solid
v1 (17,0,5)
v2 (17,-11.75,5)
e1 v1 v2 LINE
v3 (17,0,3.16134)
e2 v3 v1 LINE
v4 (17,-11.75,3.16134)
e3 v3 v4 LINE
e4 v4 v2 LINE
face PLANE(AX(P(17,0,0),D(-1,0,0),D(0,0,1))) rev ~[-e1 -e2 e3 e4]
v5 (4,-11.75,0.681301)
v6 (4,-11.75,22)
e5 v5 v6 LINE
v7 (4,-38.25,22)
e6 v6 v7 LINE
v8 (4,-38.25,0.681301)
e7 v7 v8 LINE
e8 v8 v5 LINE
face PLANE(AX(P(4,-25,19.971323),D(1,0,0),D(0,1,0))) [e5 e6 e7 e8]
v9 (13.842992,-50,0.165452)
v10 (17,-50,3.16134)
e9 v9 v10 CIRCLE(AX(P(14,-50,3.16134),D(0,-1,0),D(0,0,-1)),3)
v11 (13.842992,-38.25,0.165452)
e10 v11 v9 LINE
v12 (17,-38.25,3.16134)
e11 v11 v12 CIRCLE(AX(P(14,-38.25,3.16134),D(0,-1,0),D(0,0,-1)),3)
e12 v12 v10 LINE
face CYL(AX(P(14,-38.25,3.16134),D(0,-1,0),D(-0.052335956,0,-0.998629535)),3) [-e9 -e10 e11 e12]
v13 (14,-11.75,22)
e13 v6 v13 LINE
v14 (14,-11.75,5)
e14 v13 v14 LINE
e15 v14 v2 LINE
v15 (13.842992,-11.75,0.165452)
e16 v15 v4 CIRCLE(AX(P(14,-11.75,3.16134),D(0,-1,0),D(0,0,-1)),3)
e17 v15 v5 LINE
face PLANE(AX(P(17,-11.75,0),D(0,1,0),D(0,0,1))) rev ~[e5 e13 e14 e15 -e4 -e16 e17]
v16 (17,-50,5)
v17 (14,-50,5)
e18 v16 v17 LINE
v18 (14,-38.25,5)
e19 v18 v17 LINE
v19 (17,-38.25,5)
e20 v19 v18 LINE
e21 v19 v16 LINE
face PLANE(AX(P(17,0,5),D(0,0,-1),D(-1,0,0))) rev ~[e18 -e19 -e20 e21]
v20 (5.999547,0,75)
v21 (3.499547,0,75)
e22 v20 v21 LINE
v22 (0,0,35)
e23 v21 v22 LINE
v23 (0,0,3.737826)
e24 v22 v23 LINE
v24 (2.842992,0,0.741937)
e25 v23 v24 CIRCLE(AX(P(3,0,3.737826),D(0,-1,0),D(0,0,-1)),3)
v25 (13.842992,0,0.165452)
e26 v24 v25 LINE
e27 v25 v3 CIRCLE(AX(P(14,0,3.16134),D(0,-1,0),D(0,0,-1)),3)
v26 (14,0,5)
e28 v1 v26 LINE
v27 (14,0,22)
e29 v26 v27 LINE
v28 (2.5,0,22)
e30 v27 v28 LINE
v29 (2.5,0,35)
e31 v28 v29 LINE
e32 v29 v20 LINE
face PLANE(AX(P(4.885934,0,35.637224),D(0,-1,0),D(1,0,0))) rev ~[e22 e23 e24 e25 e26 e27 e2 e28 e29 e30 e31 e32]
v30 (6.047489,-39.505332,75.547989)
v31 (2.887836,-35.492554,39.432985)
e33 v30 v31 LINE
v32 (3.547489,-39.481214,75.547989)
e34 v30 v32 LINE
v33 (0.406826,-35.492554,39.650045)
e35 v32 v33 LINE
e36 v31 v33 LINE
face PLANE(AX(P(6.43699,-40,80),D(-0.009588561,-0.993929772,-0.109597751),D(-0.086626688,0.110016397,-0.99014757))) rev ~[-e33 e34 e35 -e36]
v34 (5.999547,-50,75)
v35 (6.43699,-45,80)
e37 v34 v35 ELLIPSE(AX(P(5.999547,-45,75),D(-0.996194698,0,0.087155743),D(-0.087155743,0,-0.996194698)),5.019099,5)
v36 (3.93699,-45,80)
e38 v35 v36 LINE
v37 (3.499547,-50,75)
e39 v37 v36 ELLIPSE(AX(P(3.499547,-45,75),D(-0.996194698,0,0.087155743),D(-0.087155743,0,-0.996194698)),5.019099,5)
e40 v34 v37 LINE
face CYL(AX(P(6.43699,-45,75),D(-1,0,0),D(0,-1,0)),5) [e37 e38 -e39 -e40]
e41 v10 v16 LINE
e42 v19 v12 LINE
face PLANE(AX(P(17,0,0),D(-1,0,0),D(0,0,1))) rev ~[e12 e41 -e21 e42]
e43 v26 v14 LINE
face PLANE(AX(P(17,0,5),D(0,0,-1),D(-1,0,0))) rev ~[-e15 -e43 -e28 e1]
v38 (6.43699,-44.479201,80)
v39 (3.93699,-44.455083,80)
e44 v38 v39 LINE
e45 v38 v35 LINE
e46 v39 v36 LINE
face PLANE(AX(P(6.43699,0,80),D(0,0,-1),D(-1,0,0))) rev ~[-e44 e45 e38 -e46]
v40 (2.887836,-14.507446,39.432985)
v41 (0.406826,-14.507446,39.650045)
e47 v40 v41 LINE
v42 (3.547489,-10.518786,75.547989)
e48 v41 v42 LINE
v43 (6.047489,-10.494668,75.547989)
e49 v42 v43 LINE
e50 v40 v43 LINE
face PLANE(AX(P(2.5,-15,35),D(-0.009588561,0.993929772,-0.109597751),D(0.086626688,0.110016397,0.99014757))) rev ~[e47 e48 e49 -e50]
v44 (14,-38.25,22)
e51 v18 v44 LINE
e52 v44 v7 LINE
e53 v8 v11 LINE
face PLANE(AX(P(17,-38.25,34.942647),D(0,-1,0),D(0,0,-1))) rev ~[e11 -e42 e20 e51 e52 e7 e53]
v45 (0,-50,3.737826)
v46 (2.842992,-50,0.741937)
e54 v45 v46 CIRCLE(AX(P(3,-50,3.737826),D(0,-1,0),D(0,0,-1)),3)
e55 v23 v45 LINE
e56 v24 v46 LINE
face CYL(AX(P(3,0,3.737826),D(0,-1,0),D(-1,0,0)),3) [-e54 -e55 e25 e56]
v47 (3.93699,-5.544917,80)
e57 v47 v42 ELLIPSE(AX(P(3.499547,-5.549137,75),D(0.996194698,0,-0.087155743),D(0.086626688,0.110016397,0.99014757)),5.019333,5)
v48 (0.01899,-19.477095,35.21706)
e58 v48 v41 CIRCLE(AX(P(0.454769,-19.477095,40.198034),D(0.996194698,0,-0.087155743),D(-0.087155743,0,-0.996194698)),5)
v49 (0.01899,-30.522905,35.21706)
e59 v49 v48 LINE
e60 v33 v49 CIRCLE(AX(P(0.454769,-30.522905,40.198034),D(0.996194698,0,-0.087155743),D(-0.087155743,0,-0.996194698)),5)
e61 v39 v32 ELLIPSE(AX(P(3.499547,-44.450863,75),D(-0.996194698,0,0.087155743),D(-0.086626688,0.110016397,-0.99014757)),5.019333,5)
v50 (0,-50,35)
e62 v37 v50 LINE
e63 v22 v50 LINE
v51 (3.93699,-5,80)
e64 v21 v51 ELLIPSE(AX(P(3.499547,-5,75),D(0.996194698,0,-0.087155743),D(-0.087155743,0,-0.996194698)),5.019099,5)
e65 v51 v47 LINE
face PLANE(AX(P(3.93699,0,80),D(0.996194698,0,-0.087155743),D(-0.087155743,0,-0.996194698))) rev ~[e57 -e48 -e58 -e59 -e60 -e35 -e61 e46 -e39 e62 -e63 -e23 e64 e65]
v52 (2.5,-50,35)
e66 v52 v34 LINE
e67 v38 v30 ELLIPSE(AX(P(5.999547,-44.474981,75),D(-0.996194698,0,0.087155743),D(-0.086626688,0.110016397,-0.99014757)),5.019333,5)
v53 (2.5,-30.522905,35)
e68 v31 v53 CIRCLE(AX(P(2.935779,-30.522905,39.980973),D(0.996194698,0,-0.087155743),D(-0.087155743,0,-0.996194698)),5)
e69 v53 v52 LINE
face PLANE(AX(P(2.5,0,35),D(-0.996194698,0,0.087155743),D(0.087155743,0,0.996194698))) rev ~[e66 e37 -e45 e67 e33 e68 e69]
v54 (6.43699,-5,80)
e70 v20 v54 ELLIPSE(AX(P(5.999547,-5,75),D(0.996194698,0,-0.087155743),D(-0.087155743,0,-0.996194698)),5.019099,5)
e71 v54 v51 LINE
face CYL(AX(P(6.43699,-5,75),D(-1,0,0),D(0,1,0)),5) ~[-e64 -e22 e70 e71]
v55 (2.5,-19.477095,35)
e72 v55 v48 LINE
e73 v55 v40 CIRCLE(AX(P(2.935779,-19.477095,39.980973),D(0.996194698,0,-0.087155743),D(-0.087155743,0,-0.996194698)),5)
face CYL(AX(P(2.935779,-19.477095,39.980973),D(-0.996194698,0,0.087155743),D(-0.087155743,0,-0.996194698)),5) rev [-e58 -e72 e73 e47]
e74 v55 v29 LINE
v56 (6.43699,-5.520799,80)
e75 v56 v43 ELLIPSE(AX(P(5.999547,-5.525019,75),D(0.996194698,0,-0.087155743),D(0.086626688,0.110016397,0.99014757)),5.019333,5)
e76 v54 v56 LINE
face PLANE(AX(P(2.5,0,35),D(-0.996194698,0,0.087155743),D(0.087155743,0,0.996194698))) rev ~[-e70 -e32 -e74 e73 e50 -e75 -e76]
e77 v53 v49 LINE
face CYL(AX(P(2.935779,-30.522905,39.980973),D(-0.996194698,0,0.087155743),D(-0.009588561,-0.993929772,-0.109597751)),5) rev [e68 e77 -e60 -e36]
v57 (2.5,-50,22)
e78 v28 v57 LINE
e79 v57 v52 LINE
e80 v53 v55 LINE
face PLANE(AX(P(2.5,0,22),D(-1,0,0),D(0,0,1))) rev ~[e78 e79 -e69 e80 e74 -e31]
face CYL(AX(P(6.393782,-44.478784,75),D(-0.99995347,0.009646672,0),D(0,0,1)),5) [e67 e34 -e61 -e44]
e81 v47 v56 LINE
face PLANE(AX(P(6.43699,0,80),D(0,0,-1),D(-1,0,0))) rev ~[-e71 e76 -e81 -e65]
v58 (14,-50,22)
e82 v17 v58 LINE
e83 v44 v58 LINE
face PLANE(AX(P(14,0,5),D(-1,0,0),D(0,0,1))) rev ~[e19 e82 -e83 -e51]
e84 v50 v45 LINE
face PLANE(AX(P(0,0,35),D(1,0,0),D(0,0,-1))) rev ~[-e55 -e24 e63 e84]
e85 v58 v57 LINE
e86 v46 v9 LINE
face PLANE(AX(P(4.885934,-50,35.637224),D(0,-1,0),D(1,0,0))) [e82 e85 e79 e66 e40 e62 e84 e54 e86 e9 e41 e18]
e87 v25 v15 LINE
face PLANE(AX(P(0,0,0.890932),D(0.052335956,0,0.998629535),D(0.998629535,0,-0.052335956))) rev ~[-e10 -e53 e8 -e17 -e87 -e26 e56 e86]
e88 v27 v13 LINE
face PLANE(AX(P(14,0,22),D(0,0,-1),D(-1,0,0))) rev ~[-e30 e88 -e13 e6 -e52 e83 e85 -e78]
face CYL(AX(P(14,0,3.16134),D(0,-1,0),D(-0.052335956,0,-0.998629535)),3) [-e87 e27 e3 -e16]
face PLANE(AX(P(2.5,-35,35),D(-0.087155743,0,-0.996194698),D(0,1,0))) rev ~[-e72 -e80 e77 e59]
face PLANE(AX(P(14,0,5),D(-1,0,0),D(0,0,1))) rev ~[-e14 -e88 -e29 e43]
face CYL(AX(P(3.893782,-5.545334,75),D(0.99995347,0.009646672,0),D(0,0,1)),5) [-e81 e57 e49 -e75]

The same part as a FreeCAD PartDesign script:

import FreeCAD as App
import Part
import Sketcher

V = App.Vector
Q = App.Units.Quantity


def edges_at(feature, points):
    """Names of the edges that pass closest to the given points."""
    edges = feature.Shape.Edges
    near = lambda p: min(range(len(edges)), key=lambda i: edges[i].distToShape(Part.Vertex(*p))[0])
    return sorted({f"Edge{near(p) + 1}" for p in points})

doc = App.newDocument("Part")
body = doc.addObject("PartDesign::Body", "Body")

# Sketch on XZ plane
sketch1 = body.newObject("Sketcher::SketchObject", "Sketch")
sketch1.AttachmentSupport = (doc.getObject("XZ_Plane"), [""])
sketch1.MapMode = "FlatFace"
sketch1.addGeometry(Part.LineSegment(V(0, 35, 0), V(0, 0.9, 0)), False)
sketch1.addGeometry(Part.LineSegment(V(0, 0.9, 0), V(17, 0, 0)), False)
sketch1.addGeometry(Part.LineSegment(V(17, 0, 0), V(17, 5, 0)), False)
sketch1.addGeometry(Part.LineSegment(V(17, 5, 0), V(14, 5, 0)), False)
sketch1.addGeometry(Part.LineSegment(V(14, 5, 0), V(14, 22, 0)), False)
sketch1.addGeometry(Part.LineSegment(V(14, 22, 0), V(2.5, 22, 0)), False)
sketch1.addGeometry(Part.LineSegment(V(2.5, 22, 0), V(2.5, 35, 0)), False)
sketch1.addGeometry(Part.LineSegment(V(2.5, 35, 0), V(6.4, 80, 0)), False)
sketch1.addGeometry(Part.LineSegment(V(6.4, 80, 0), V(3.9, 80, 0)), False)
sketch1.addGeometry(Part.LineSegment(V(3.9, 80, 0), V(0, 35, 0)), False)
sketch1.addConstraint(Sketcher.Constraint("Coincident", 0, 2, 1, 1))
sketch1.addConstraint(Sketcher.Constraint("Coincident", 1, 2, 2, 1))
sketch1.addConstraint(Sketcher.Constraint("Coincident", 2, 2, 3, 1))
sketch1.addConstraint(Sketcher.Constraint("Coincident", 3, 2, 4, 1))
sketch1.addConstraint(Sketcher.Constraint("Coincident", 4, 2, 5, 1))
sketch1.addConstraint(Sketcher.Constraint("Coincident", 5, 2, 6, 1))
sketch1.addConstraint(Sketcher.Constraint("Coincident", 6, 2, 7, 1))
sketch1.addConstraint(Sketcher.Constraint("Coincident", 7, 2, 8, 1))
sketch1.addConstraint(Sketcher.Constraint("Coincident", 8, 2, 9, 1))
sketch1.addConstraint(Sketcher.Constraint("Coincident", 9, 2, 0, 1))
sketch1.addConstraint(Sketcher.Constraint("Vertical", 0))
sketch1.addConstraint(Sketcher.Constraint("Vertical", 2))
sketch1.addConstraint(Sketcher.Constraint("Horizontal", 3))
sketch1.addConstraint(Sketcher.Constraint("Vertical", 4))
sketch1.addConstraint(Sketcher.Constraint("Horizontal", 5))
sketch1.addConstraint(Sketcher.Constraint("Vertical", 6))
sketch1.addConstraint(Sketcher.Constraint("Horizontal", 8))
sketch1.addConstraint(Sketcher.Constraint("PointOnObject", 0, 2, -2))
sketch1.addConstraint(Sketcher.Constraint("PointOnObject", 1, 2, -1))
sketch1.addConstraint(Sketcher.Constraint("Parallel", 7, 9))
sketch1.addConstraint(Sketcher.Constraint("Horizontal", 6, 2, 9, 2))
sketch1.addConstraint(Sketcher.Constraint("DistanceX", 3, 2, 3, 1, Q("3 mm")))
sketch1.addConstraint(Sketcher.Constraint("DistanceY", 2, 1, 2, 2, Q("5 mm")))
sketch1.addConstraint(Sketcher.Constraint("DistanceY", 4, 1, 4, 2, Q("17 mm")))
sketch1.addConstraint(Sketcher.Constraint("DistanceY", 6, 1, 6, 2, Q("13 mm")))
sketch1.addConstraint(Sketcher.Constraint("Angle", 1, Q("-3 deg")))
sketch1.addConstraint(Sketcher.Constraint("Angle", 7, Q("85 deg")))
sketch1.addConstraint(Sketcher.Constraint("DistanceX", 5, 2, 5, 1, Q("11.5 mm")))
sketch1.addConstraint(Sketcher.Constraint("DistanceX", 8, 2, 8, 1, Q("2.5 mm")))
sketch1.addConstraint(Sketcher.Constraint("DistanceY", -1, 1, 7, 2, Q("80 mm")))
pad1 = body.newObject("PartDesign::Pad", "Pad")
pad1.Profile = sketch1
pad1.Length = 50

# Sketch on YZ plane
sketch2 = body.newObject("Sketcher::SketchObject", "Sketch001")
sketch2.AttachmentSupport = (doc.getObject("YZ_Plane"), [""])
sketch2.MapMode = "FlatFace"
sketch2.AttachmentOffset = App.Placement(V(0, 0, 17), App.Rotation())
sketch2.addGeometry(Part.LineSegment(V(-38, 35, 0), V(-38, 0, 0)), False)
sketch2.addGeometry(Part.LineSegment(V(-38, 0, 0), V(-12, 0, 0)), False)
sketch2.addGeometry(Part.LineSegment(V(-12, 0, 0), V(-12, 35, 0)), False)
sketch2.addGeometry(Part.LineSegment(V(-12, 35, 0), V(-38, 35, 0)), False)
sketch2.addConstraint(Sketcher.Constraint("Coincident", 0, 2, 1, 1))
sketch2.addConstraint(Sketcher.Constraint("Coincident", 1, 2, 2, 1))
sketch2.addConstraint(Sketcher.Constraint("Coincident", 2, 2, 3, 1))
sketch2.addConstraint(Sketcher.Constraint("Coincident", 3, 2, 0, 1))
sketch2.addConstraint(Sketcher.Constraint("Vertical", 0))
sketch2.addConstraint(Sketcher.Constraint("Horizontal", 1))
sketch2.addConstraint(Sketcher.Constraint("Vertical", 2))
sketch2.addConstraint(Sketcher.Constraint("Horizontal", 3))
sketch2.addConstraint(Sketcher.Constraint("PointOnObject", 0, 2, -1))
sketch2.addConstraint(Sketcher.Constraint("DistanceX", 1, 1, 1, 2, Q("26.5 mm")))
sketch2.addConstraint(Sketcher.Constraint("DistanceX", 0, 2, -1, 1, Q("38.25 mm")))
sketch2.addConstraint(Sketcher.Constraint("DistanceY", 0, 2, 0, 1, Q("34.942647 mm")))
pocket1 = body.newObject("PartDesign::Pocket", "Pocket")
pocket1.Profile = sketch2
pocket1.Length = 13
doc.recompute()

fillet = body.newObject("PartDesign::Fillet", "Fillet")
fillet.Base = (pocket1, edges_at(pocket1, [(0, -25, 0.891), (17, -44.125, 0), (17, -5.875, 0)]))
fillet.Radius = 3

# Sketch on an angled plane
sketch3 = body.newObject("Sketcher::SketchObject", "Sketch002")
sketch3.Placement = App.Placement(V(-0.557833, 0, 0.048804), App.Rotation(V(0, 1, 0), V(0.087155743, 0, 0.996194698), V(0.996194698, 0, -0.087155743), "ZXY"))
sketch3.addGeometry(Part.LineSegment(V(-40, 80, 0), V(-35, 35, 0)), False)
sketch3.addGeometry(Part.LineSegment(V(-35, 35, 0), V(-15, 35, 0)), False)
sketch3.addGeometry(Part.LineSegment(V(-15, 35, 0), V(-10, 80, 0)), False)
sketch3.addGeometry(Part.LineSegment(V(-10, 80, 0), V(-40, 80, 0)), False)
sketch3.addConstraint(Sketcher.Constraint("Coincident", 0, 2, 1, 1))
sketch3.addConstraint(Sketcher.Constraint("Coincident", 1, 2, 2, 1))
sketch3.addConstraint(Sketcher.Constraint("Coincident", 2, 2, 3, 1))
sketch3.addConstraint(Sketcher.Constraint("Coincident", 3, 2, 0, 1))
sketch3.addConstraint(Sketcher.Constraint("Horizontal", 1))
sketch3.addConstraint(Sketcher.Constraint("Horizontal", 3))
sketch3.addConstraint(Sketcher.Constraint("Equal", 0, 2))
sketch3.addConstraint(Sketcher.Constraint("DistanceX", 1, 1, 1, 2, Q("20 mm")))
sketch3.addConstraint(Sketcher.Constraint("DistanceX", 3, 2, 3, 1, Q("30 mm")))
sketch3.addConstraint(Sketcher.Constraint("DistanceX", 0, 2, -1, 1, Q("35 mm")))
sketch3.addConstraint(Sketcher.Constraint("Distance", 0, Q("45.447771 mm")))
sketch3.addConstraint(Sketcher.Constraint("DistanceY", -1, 1, 0, 2, Q("35.084704 mm")))
pocket2 = body.newObject("PartDesign::Pocket", "Pocket001")
pocket2.Profile = sketch3
pocket2.Length = 25
doc.recompute()

fillet2 = body.newObject("PartDesign::Fillet", "Fillet001")
fillet2.Base = (pocket2, edges_at(pocket2, [
    (5.187, -50, 80),
    (5.187, -39.988, 80),
    (5.187, -10.012, 80),
    (5.187, 0, 80),
    (1.259, -15, 35.109),
    (1.259, -35, 35.109),
]))
fillet2.Radius = 5

doc.recompute()
